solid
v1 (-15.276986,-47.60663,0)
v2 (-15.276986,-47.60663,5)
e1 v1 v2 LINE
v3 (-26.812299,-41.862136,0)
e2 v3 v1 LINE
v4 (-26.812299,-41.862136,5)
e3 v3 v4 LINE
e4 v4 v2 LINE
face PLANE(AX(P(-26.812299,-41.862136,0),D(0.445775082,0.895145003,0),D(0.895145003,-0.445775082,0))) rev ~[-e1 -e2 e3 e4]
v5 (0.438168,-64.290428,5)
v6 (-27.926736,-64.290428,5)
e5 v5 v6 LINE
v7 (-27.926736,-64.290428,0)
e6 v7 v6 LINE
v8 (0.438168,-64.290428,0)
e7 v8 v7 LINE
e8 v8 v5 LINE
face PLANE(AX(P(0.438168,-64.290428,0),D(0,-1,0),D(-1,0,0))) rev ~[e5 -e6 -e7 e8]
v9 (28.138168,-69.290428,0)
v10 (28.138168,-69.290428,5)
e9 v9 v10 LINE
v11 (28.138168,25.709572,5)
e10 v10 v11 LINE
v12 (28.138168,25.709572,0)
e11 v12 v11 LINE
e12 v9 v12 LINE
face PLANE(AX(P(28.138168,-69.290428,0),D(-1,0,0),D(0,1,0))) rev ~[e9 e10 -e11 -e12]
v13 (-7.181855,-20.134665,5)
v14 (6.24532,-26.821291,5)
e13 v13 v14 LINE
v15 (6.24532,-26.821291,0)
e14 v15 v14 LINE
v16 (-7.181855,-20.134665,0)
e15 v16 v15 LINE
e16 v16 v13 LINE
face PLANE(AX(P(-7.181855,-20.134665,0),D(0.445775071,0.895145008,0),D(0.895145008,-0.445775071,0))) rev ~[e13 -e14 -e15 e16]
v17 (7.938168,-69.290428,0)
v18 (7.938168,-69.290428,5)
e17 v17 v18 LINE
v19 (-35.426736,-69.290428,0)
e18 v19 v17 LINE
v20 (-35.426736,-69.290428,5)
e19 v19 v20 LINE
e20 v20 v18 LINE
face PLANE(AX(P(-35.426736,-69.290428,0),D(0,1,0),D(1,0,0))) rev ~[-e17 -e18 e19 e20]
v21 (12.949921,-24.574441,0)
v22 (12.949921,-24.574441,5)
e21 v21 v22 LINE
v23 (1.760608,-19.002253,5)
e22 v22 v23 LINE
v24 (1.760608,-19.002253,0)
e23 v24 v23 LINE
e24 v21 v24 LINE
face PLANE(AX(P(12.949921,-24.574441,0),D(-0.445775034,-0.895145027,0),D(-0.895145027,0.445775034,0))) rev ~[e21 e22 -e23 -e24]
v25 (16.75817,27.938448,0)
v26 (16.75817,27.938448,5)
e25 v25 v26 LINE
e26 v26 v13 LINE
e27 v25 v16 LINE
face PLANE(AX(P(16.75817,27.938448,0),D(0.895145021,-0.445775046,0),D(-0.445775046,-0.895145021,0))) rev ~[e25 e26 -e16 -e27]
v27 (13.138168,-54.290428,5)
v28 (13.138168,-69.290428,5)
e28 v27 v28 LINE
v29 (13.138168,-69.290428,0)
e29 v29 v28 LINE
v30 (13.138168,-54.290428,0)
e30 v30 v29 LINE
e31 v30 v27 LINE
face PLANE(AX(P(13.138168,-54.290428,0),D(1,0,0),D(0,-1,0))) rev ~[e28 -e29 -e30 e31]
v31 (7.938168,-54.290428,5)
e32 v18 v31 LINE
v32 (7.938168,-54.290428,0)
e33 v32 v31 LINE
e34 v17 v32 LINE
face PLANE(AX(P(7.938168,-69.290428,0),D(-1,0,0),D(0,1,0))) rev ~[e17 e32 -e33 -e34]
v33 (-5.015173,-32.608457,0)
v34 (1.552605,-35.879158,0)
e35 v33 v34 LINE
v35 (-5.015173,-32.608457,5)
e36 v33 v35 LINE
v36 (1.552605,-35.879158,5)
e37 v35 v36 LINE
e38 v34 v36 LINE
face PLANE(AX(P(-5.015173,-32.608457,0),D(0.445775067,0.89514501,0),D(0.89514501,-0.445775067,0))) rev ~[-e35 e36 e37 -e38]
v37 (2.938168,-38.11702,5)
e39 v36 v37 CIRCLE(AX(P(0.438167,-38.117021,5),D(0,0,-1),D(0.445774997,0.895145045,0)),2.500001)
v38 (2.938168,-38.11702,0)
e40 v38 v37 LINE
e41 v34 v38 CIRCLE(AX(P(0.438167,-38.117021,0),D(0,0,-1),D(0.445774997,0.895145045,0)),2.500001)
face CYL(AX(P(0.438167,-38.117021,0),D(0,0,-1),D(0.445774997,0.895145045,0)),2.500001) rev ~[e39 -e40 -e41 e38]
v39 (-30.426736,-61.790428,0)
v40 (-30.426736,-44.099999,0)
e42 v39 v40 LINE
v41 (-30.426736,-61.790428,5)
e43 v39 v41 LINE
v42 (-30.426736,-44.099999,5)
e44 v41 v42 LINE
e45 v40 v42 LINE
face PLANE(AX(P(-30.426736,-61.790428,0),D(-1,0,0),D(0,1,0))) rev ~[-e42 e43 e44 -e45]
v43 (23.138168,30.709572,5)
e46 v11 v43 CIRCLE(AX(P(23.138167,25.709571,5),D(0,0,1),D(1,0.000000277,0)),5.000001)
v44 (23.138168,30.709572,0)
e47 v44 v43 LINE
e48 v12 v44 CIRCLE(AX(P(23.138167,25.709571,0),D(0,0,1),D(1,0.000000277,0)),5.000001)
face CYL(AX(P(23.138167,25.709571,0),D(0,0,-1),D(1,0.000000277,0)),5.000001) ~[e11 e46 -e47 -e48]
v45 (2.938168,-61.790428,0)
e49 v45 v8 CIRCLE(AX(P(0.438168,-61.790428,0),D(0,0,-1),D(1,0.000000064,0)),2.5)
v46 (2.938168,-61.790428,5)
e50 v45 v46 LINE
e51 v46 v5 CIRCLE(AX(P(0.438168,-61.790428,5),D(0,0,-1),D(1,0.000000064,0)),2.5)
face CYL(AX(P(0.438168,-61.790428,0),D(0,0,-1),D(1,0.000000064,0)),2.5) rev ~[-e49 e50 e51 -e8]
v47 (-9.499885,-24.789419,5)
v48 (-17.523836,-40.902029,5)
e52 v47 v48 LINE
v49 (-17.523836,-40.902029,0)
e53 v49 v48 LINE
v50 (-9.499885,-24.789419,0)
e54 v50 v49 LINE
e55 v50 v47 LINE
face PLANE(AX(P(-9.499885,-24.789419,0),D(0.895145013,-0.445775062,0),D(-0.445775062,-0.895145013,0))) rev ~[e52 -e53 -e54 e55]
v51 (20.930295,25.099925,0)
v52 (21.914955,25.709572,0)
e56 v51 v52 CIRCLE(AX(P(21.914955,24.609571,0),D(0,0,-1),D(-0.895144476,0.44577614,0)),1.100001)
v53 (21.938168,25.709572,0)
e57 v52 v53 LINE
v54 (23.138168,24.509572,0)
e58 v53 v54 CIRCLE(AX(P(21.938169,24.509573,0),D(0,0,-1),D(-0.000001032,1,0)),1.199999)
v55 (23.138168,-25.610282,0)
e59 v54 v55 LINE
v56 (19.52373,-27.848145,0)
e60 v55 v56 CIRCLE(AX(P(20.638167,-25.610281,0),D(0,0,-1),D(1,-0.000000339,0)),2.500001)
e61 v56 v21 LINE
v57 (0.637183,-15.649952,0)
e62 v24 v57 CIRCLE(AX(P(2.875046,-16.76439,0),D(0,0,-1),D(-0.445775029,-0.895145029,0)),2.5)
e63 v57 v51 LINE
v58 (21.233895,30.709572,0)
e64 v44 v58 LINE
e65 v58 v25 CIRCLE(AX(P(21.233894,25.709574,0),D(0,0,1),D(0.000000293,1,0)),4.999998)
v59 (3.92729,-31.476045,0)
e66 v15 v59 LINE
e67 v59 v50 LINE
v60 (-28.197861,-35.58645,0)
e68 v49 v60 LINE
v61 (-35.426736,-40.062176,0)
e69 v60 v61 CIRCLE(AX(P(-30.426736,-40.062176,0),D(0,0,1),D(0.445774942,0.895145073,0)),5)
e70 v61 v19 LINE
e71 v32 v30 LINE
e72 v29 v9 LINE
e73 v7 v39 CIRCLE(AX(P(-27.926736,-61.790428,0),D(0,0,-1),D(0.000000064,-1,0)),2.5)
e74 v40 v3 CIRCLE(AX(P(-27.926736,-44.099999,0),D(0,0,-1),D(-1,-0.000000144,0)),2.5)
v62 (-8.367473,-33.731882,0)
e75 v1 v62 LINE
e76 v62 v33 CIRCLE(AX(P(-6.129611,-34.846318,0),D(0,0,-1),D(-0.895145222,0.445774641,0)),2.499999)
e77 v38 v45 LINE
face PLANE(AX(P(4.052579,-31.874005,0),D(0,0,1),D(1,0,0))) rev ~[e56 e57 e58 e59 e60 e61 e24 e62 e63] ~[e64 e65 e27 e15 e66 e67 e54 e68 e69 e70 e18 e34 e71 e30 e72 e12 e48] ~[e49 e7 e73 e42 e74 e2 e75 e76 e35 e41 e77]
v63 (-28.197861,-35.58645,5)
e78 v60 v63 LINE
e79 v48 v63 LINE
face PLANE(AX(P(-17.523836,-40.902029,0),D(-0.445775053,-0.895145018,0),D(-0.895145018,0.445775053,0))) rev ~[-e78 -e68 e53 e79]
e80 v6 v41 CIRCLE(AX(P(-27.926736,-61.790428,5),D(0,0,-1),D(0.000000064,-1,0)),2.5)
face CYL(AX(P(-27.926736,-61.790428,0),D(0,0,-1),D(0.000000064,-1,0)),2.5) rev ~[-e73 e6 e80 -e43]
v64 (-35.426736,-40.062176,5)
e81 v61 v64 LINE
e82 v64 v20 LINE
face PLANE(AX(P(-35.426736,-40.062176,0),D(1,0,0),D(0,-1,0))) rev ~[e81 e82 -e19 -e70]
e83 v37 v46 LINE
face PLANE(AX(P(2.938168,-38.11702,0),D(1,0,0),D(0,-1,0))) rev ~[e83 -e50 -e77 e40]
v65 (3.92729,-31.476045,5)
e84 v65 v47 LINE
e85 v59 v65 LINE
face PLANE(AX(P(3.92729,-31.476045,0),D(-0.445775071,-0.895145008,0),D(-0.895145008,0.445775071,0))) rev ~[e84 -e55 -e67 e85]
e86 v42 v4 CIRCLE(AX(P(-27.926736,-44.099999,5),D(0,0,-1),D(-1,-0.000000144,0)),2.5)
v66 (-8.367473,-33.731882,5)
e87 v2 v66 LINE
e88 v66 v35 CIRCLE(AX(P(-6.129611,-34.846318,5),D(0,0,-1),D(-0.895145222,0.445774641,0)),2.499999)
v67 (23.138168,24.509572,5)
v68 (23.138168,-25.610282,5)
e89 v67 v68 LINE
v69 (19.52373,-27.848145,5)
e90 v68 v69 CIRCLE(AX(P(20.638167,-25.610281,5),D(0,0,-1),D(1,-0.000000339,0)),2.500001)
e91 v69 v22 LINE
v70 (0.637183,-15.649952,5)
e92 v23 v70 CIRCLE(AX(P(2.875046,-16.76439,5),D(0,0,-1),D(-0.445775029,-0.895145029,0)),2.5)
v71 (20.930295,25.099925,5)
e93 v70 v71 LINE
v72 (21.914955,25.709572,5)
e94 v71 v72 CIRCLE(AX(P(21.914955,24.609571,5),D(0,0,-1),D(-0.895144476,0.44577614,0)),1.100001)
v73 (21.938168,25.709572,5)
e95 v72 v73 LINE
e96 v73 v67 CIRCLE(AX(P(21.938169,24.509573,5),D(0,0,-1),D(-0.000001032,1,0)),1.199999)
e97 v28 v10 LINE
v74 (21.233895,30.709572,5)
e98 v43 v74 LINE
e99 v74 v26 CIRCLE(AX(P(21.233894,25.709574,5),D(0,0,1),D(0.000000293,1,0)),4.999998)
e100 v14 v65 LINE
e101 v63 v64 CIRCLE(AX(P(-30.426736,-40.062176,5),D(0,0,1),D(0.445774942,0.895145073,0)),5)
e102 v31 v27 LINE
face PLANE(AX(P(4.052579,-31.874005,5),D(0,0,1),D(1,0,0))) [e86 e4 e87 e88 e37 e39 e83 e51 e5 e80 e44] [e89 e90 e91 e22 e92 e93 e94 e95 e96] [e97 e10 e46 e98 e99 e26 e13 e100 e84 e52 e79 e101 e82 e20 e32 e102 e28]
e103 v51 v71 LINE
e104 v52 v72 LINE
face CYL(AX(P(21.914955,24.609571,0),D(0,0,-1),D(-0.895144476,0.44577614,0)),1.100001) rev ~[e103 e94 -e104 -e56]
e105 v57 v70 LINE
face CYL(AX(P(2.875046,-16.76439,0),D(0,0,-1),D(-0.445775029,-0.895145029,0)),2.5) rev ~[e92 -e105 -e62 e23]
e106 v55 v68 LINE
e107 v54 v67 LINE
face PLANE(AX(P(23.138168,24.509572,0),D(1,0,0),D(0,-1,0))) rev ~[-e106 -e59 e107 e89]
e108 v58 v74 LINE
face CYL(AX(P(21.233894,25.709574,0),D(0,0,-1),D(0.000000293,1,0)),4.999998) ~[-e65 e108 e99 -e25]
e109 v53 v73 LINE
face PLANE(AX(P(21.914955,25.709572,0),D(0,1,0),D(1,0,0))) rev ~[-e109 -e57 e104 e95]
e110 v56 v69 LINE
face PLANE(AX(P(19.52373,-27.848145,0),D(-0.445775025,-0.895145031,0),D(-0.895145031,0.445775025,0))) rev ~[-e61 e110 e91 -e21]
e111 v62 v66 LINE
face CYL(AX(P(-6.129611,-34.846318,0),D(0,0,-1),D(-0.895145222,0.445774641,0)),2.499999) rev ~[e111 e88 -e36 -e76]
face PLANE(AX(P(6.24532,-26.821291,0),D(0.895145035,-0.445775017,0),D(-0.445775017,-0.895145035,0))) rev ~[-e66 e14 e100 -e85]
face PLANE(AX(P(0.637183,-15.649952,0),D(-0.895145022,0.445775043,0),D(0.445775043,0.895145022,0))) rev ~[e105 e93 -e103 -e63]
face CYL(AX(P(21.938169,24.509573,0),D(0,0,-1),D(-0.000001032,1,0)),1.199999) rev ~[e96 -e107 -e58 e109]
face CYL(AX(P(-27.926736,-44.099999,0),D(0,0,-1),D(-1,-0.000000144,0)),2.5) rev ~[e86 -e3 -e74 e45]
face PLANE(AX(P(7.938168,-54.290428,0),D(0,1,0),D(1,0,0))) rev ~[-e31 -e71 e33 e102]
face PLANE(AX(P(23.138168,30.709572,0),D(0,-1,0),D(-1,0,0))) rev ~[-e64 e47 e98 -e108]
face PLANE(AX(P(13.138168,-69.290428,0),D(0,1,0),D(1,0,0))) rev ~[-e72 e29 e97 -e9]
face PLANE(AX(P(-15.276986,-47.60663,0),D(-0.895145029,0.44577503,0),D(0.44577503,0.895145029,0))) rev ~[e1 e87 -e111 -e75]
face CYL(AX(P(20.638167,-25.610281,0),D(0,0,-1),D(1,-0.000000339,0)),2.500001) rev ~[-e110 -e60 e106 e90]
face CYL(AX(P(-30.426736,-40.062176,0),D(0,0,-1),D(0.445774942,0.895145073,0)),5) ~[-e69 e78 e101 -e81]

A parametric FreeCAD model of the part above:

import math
import FreeCAD as App
import Part
import Sketcher
from FreeCAD import Vector

doc = App.newDocument("Part")
params = doc.addObject("Spreadsheet::Sheet", "Params")
for row, (alias, value) in enumerate([
    ("sketch1_radius", "5.000001 mm"),
    ("sketch1_radius2", "2.5 mm"),
    ("sketch1_radius3", "1.100001 mm"),
    ("sketch1_radius4", "1.199999 mm"),
    ("sketch1_width", "15 mm"),
    ("pad1_length", "5 mm"),
], start=1):
    params.set(f"A{row}", alias)
    params.set(f"B{row}", "=" + value)
    params.setAlias(f"B{row}", alias)

body = doc.addObject("PartDesign::Body", "Body")

# Sketch on XY plane
sketch1 = doc.addObject("Sketcher::SketchObject", "Sketch")
body.addObject(sketch1)
sketch1.AttachmentSupport = (doc.XY_Plane, [""])
sketch1.MapMode = "FlatFace"
sketch1.addGeometry(Part.LineSegment(Vector(28.138168, -69.290428, 0), Vector(28.138168, 25.709572, 0)), False)
sketch1.addGeometry(Part.ArcOfCircle(Part.Circle(Vector(23.138167, 25.709571, 0), Vector(0, 0, 1), 5.000001), math.radians(0.000016), math.radians(89.999984)), False)
sketch1.addGeometry(Part.LineSegment(Vector(23.138168, 30.709572, 0), Vector(21.233895, 30.709572, 0)), False)
sketch1.addGeometry(Part.ArcOfCircle(Part.Circle(Vector(21.233894, 25.709574, 0), Vector(0, 0, 1), 4.999998), math.radians(89.999983), math.radians(153.527067)), False)
sketch1.addGeometry(Part.LineSegment(Vector(16.75817, 27.938448, 0), Vector(-7.181855, -20.134665, 0)), False)
sketch1.addGeometry(Part.LineSegment(Vector(-7.181855, -20.134665, 0), Vector(6.24532, -26.821291, 0)), False)
sketch1.addGeometry(Part.LineSegment(Vector(6.24532, -26.821291, 0), Vector(3.92729, -31.476045, 0)), False)
sketch1.addGeometry(Part.LineSegment(Vector(3.92729, -31.476045, 0), Vector(-9.499885, -24.789419, 0)), False)
sketch1.addGeometry(Part.LineSegment(Vector(-9.499885, -24.789419, 0), Vector(-17.523836, -40.902029, 0)), False)
sketch1.addGeometry(Part.LineSegment(Vector(-17.523836, -40.902029, 0), Vector(-28.197861, -35.58645, 0)), False)
sketch1.addGeometry(Part.ArcOfCircle(Part.Circle(Vector(-30.426736, -40.062176, 0), Vector(0, 0, 1), 5), math.radians(63.52707), math.radians(180.000005)), False)
sketch1.addGeometry(Part.LineSegment(Vector(-35.426736, -40.062176, 0), Vector(-35.426736, -69.290428, 0)), False)
sketch1.addGeometry(Part.LineSegment(Vector(-35.426736, -69.290428, 0), Vector(7.938168, -69.290428, 0)), False)
sketch1.addGeometry(Part.LineSegment(Vector(7.938168, -69.290428, 0), Vector(7.938168, -54.290428, 0)), False)
sketch1.addGeometry(Part.LineSegment(Vector(7.938168, -54.290428, 0), Vector(13.138168, -54.290428, 0)), False)
sketch1.addGeometry(Part.LineSegment(Vector(13.138168, -54.290428, 0), Vector(13.138168, -69.290428, 0)), False)
sketch1.addGeometry(Part.LineSegment(Vector(13.138168, -69.290428, 0), Vector(28.138168, -69.290428, 0)), False)
sketch1.addGeometry(Part.LineSegment(Vector(2.938168, -38.11702, 0), Vector(2.938168, -61.790428, 0)), False)
sketch1.addGeometry(Part.ArcOfCircle(Part.Circle(Vector(0.438168, -61.790428, 0), Vector(0, 0, 1), 2.5), math.radians(-90.000004), math.radians(0.000004)), False)
sketch1.addGeometry(Part.LineSegment(Vector(0.438168, -64.290428, 0), Vector(-27.926736, -64.290428, 0)), False)
sketch1.addGeometry(Part.ArcOfCircle(Part.Circle(Vector(-27.926736, -61.790428, 0), Vector(0, 0, 1), 2.5), math.radians(179.999996), math.radians(270.000004)), False)
sketch1.addGeometry(Part.LineSegment(Vector(-30.426736, -61.790428, 0), Vector(-30.426736, -44.099999, 0)), False)
sketch1.addGeometry(Part.ArcOfCircle(Part.Circle(Vector(-27.926736, -44.099999, 0), Vector(0, 0, 1), 2.5), math.radians(63.527074), math.radians(180.000008)), False)
sketch1.addGeometry(Part.LineSegment(Vector(-26.812299, -41.862136, 0), Vector(-15.276986, -47.60663, 0)), False)
sketch1.addGeometry(Part.LineSegment(Vector(-15.276986, -47.60663, 0), Vector(-8.367473, -33.731882, 0)), False)
sketch1.addGeometry(Part.ArcOfCircle(Part.Circle(Vector(-6.129611, -34.846318, 0), Vector(0, 0, 1), 2.499999), math.radians(63.527041), math.radians(153.527089)), False)
sketch1.addGeometry(Part.LineSegment(Vector(-5.015173, -32.608457, 0), Vector(1.552605, -35.879158, 0)), False)
sketch1.addGeometry(Part.ArcOfCircle(Part.Circle(Vector(0.438167, -38.117021, 0), Vector(0, 0, 1), 2.500001), math.radians(0.000032), math.radians(63.527067)), False)
sketch1.addGeometry(Part.ArcOfCircle(Part.Circle(Vector(21.914955, 24.609571, 0), Vector(0, 0, 1), 1.100001), math.radians(90.000007), math.radians(153.526993)), False)
sketch1.addGeometry(Part.LineSegment(Vector(21.914955, 25.709572, 0), Vector(21.938168, 25.709572, 0)), False)
sketch1.addGeometry(Part.ArcOfCircle(Part.Circle(Vector(21.938169, 24.509573, 0), Vector(0, 0, 1), 1.199999), math.radians(-0.000059), math.radians(90.000059)), False)
sketch1.addGeometry(Part.LineSegment(Vector(23.138168, 24.509572, 0), Vector(23.138168, -25.610282, 0)), False)
sketch1.addGeometry(Part.ArcOfCircle(Part.Circle(Vector(20.638167, -25.610281, 0), Vector(0, 0, 1), 2.500001), math.radians(-116.472912), math.radians(-0.000019)), False)
sketch1.addGeometry(Part.LineSegment(Vector(19.52373, -27.848145, 0), Vector(12.949921, -24.574441, 0)), False)
sketch1.addGeometry(Part.LineSegment(Vector(12.949921, -24.574441, 0), Vector(1.760608, -19.002253, 0)), False)
sketch1.addGeometry(Part.ArcOfCircle(Part.Circle(Vector(2.875046, -16.76439, 0), Vector(0, 0, 1), 2.5), math.radians(153.527056), math.radians(243.527064)), False)
sketch1.addGeometry(Part.LineSegment(Vector(0.637183, -15.649952, 0), Vector(20.930295, 25.099925, 0)), False)
sketch1.addConstraint(Sketcher.Constraint("Tangent", 0, 2, 1, 1))
sketch1.addConstraint(Sketcher.Constraint("Tangent", 1, 2, 2, 1))
sketch1.addConstraint(Sketcher.Constraint("Tangent", 2, 2, 3, 1))
sketch1.addConstraint(Sketcher.Constraint("Tangent", 3, 2, 4, 1))
sketch1.addConstraint(Sketcher.Constraint("Coincident", 4, 2, 5, 1))
sketch1.addConstraint(Sketcher.Constraint("Coincident", 5, 2, 6, 1))
sketch1.addConstraint(Sketcher.Constraint("Coincident", 6, 2, 7, 1))
sketch1.addConstraint(Sketcher.Constraint("Coincident", 7, 2, 8, 1))
sketch1.addConstraint(Sketcher.Constraint("Coincident", 8, 2, 9, 1))
sketch1.addConstraint(Sketcher.Constraint("Tangent", 9, 2, 10, 1))
sketch1.addConstraint(Sketcher.Constraint("Tangent", 10, 2, 11, 1))
sketch1.addConstraint(Sketcher.Constraint("Coincident", 11, 2, 12, 1))
sketch1.addConstraint(Sketcher.Constraint("Coincident", 12, 2, 13, 1))
sketch1.addConstraint(Sketcher.Constraint("Coincident", 13, 2, 14, 1))
sketch1.addConstraint(Sketcher.Constraint("Coincident", 14, 2, 15, 1))
sketch1.addConstraint(Sketcher.Constraint("Coincident", 15, 2, 16, 1))
sketch1.addConstraint(Sketcher.Constraint("Coincident", 16, 2, 0, 1))
sketch1.addConstraint(Sketcher.Constraint("Tangent", 17, 2, 18, 2))
sketch1.addConstraint(Sketcher.Constraint("Tangent", 18, 1, 19, 1))
sketch1.addConstraint(Sketcher.Constraint("Tangent", 19, 2, 20, 2))
sketch1.addConstraint(Sketcher.Constraint("Tangent", 20, 1, 21, 1))
sketch1.addConstraint(Sketcher.Constraint("Tangent", 21, 2, 22, 2))
sketch1.addConstraint(Sketcher.Constraint("Tangent", 22, 1, 23, 1))
sketch1.addConstraint(Sketcher.Constraint("Coincident", 23, 2, 24, 1))
sketch1.addConstraint(Sketcher.Constraint("Tangent", 24, 2, 25, 2))
sketch1.addConstraint(Sketcher.Constraint("Tangent", 25, 1, 26, 1))
sketch1.addConstraint(Sketcher.Constraint("Tangent", 26, 2, 27, 2))
sketch1.addConstraint(Sketcher.Constraint("Tangent", 27, 1, 17, 1))
sketch1.addConstraint(Sketcher.Constraint("Tangent", 28, 1, 29, 1))
sketch1.addConstraint(Sketcher.Constraint("Tangent", 29, 2, 30, 2))
sketch1.addConstraint(Sketcher.Constraint("Tangent", 30, 1, 31, 1))
sketch1.addConstraint(Sketcher.Constraint("Tangent", 31, 2, 32, 2))
sketch1.addConstraint(Sketcher.Constraint("Tangent", 32, 1, 33, 1))
sketch1.addConstraint(Sketcher.Constraint("Coincident", 33, 2, 34, 1))
sketch1.addConstraint(Sketcher.Constraint("Tangent", 34, 2, 35, 2))
sketch1.addConstraint(Sketcher.Constraint("Tangent", 35, 1, 36, 1))
sketch1.addConstraint(Sketcher.Constraint("Tangent", 36, 2, 28, 2))
sketch1.addConstraint(Sketcher.Constraint("Vertical", 0))
sketch1.addConstraint(Sketcher.Constraint("Horizontal", 2))
sketch1.addConstraint(Sketcher.Constraint("Vertical", 11))
sketch1.addConstraint(Sketcher.Constraint("Horizontal", 12))
sketch1.addConstraint(Sketcher.Constraint("Vertical", 13))
sketch1.addConstraint(Sketcher.Constraint("Horizontal", 14))
sketch1.addConstraint(Sketcher.Constraint("Vertical", 15))
sketch1.addConstraint(Sketcher.Constraint("Horizontal", 16))
sketch1.addConstraint(Sketcher.Constraint("Vertical", 17))
sketch1.addConstraint(Sketcher.Constraint("Horizontal", 19))
sketch1.addConstraint(Sketcher.Constraint("Vertical", 21))
sketch1.addConstraint(Sketcher.Constraint("Horizontal", 29))
sketch1.addConstraint(Sketcher.Constraint("Vertical", 31))
sketch1.addConstraint(Sketcher.Constraint("Equal", 1, 10))
sketch1.addConstraint(Sketcher.Constraint("Equal", 18, 20))
sketch1.addConstraint(Sketcher.Constraint("Equal", 20, 22))
sketch1.addConstraint(Sketcher.Constraint("Equal", 22, 25))
sketch1.addConstraint(Sketcher.Constraint("Equal", 22, 27))
sketch1.addConstraint(Sketcher.Constraint("Equal", 27, 32))
sketch1.addConstraint(Sketcher.Constraint("Equal", 32, 35))
sketch1.addConstraint(Sketcher.Constraint("Perpendicular", 4, 5))
sketch1.addConstraint(Sketcher.Constraint("Perpendicular", 5, 6))
sketch1.addConstraint(Sketcher.Constraint("Perpendicular", 6, 7))
sketch1.addConstraint(Sketcher.Constraint("Perpendicular", 7, 8))
sketch1.addConstraint(Sketcher.Constraint("Perpendicular", 8, 9))
sketch1.addConstraint(Sketcher.Constraint("Parallel", 9, 23))
sketch1.addConstraint(Sketcher.Constraint("Perpendicular", 23, 24))
sketch1.addConstraint(Sketcher.Constraint("Perpendicular", 24, 26))
sketch1.addConstraint(Sketcher.Constraint("Parallel", 26, 33))
sketch1.addConstraint(Sketcher.Constraint("Parallel", 33, 34))
sketch1.addConstraint(Sketcher.Constraint("Perpendicular", 34, 36))
sketch1.addConstraint(Sketcher.Constraint("Horizontal", 3, 3, 0, 2))
sketch1.addConstraint(Sketcher.Constraint("Horizontal", 12, 2, 15, 2))
sketch1.addConstraint(Sketcher.Constraint("Horizontal", 0, 2, 28, 1))
sketch1.addConstraint(Sketcher.Constraint("Vertical", 10, 3, 20, 1))
sketch1.addConstraint(Sketcher.Constraint("Vertical", 1, 2, 30, 1))
sketch1.addConstraint(Sketcher.Constraint("Equal", 16, 13))
sketch1.addConstraint(Sketcher.Constraint("Equal", 5, 7))
sketch1.addConstraint(Sketcher.Constraint("Radius", 1, 5.000001))
sketch1.addConstraint(Sketcher.Constraint("Radius", 18, 2.5))
sketch1.addConstraint(Sketcher.Constraint("Radius", 28, 1.100001))
sketch1.addConstraint(Sketcher.Constraint("Radius", 30, 1.199999))
sketch1.addConstraint(Sketcher.Constraint("DistanceX", 16, 1, 16, 2, 15.0))
sketch1.addConstraint(Sketcher.Constraint("DistanceY", 0, 1, 0, 2, 95.0))
sketch1.addConstraint(Sketcher.Constraint("Distance", 5, 15.0))
sketch1.addConstraint(Sketcher.Constraint("Distance", 8, 18.0))
sketch1.addConstraint(Sketcher.Constraint("DistanceX", 14, 1, 14, 2, 5.2))
sketch1.addConstraint(Sketcher.Constraint("DistanceX", 17, 2, 13, 2, 5.0))
sketch1.addConstraint(Sketcher.Constraint("DistanceY", 12, 2, 18, 1, 5.0))
sketch1.addConstraint(Sketcher.Constraint("Distance", 6, 5.2))
sketch1.addConstraint(Sketcher.Constraint("Distance", 24, 15.5))
sketch1.addConstraint(Sketcher.Constraint("Distance", 34, 12.5))
sketch1.addConstraint(Sketcher.Constraint("DistanceY", 22, 3, -1, 1, 44.099999))
sketch1.addConstraint(Sketcher.Constraint("DistanceX", 3, 2, 30, 3, 5.179999))
sketch1.addConstraint(Sketcher.Constraint("DistanceY", 17, 2, 17, 1, 23.673408))
sketch1.addConstraint(Sketcher.Constraint("DistanceY", 21, 1, 21, 2, 17.690429))
sketch1.addConstraint(Sketcher.Constraint("DistanceX", 22, 1, -1, 1, 26.812299))
sketch1.addConstraint(Sketcher.Constraint("DistanceX", 4, 2, 35, 3, 10.056901))
sketch1.addConstraint(Sketcher.Constraint("DistanceY", 5, 2, 35, 3, 10.056901))
sketch1.addConstraint(Sketcher.Constraint("DistanceX", 25, 3, 6, 2, 10.056901))
sketch1.addConstraint(Sketcher.Constraint("DistanceY", 25, 3, 7, 2, 10.056899))
sketch1.addConstraint(Sketcher.Constraint("DistanceX", 22, 3, 8, 2, 10.4029))
sketch1.setExpression("Constraints[75]", "Params.sketch1_radius")
sketch1.setExpression("Constraints[76]", "Params.sketch1_radius2")
sketch1.setExpression("Constraints[77]", "Params.sketch1_radius3")
sketch1.setExpression("Constraints[78]", "Params.sketch1_radius4")
sketch1.setExpression("Constraints[79]", "Params.sketch1_width")
pad1 = doc.addObject("PartDesign::Pad", "Pad")
body.addObject(pad1)
pad1.Profile = sketch1
pad1.setExpression("Length", "Params.pad1_length")

doc.recompute()
